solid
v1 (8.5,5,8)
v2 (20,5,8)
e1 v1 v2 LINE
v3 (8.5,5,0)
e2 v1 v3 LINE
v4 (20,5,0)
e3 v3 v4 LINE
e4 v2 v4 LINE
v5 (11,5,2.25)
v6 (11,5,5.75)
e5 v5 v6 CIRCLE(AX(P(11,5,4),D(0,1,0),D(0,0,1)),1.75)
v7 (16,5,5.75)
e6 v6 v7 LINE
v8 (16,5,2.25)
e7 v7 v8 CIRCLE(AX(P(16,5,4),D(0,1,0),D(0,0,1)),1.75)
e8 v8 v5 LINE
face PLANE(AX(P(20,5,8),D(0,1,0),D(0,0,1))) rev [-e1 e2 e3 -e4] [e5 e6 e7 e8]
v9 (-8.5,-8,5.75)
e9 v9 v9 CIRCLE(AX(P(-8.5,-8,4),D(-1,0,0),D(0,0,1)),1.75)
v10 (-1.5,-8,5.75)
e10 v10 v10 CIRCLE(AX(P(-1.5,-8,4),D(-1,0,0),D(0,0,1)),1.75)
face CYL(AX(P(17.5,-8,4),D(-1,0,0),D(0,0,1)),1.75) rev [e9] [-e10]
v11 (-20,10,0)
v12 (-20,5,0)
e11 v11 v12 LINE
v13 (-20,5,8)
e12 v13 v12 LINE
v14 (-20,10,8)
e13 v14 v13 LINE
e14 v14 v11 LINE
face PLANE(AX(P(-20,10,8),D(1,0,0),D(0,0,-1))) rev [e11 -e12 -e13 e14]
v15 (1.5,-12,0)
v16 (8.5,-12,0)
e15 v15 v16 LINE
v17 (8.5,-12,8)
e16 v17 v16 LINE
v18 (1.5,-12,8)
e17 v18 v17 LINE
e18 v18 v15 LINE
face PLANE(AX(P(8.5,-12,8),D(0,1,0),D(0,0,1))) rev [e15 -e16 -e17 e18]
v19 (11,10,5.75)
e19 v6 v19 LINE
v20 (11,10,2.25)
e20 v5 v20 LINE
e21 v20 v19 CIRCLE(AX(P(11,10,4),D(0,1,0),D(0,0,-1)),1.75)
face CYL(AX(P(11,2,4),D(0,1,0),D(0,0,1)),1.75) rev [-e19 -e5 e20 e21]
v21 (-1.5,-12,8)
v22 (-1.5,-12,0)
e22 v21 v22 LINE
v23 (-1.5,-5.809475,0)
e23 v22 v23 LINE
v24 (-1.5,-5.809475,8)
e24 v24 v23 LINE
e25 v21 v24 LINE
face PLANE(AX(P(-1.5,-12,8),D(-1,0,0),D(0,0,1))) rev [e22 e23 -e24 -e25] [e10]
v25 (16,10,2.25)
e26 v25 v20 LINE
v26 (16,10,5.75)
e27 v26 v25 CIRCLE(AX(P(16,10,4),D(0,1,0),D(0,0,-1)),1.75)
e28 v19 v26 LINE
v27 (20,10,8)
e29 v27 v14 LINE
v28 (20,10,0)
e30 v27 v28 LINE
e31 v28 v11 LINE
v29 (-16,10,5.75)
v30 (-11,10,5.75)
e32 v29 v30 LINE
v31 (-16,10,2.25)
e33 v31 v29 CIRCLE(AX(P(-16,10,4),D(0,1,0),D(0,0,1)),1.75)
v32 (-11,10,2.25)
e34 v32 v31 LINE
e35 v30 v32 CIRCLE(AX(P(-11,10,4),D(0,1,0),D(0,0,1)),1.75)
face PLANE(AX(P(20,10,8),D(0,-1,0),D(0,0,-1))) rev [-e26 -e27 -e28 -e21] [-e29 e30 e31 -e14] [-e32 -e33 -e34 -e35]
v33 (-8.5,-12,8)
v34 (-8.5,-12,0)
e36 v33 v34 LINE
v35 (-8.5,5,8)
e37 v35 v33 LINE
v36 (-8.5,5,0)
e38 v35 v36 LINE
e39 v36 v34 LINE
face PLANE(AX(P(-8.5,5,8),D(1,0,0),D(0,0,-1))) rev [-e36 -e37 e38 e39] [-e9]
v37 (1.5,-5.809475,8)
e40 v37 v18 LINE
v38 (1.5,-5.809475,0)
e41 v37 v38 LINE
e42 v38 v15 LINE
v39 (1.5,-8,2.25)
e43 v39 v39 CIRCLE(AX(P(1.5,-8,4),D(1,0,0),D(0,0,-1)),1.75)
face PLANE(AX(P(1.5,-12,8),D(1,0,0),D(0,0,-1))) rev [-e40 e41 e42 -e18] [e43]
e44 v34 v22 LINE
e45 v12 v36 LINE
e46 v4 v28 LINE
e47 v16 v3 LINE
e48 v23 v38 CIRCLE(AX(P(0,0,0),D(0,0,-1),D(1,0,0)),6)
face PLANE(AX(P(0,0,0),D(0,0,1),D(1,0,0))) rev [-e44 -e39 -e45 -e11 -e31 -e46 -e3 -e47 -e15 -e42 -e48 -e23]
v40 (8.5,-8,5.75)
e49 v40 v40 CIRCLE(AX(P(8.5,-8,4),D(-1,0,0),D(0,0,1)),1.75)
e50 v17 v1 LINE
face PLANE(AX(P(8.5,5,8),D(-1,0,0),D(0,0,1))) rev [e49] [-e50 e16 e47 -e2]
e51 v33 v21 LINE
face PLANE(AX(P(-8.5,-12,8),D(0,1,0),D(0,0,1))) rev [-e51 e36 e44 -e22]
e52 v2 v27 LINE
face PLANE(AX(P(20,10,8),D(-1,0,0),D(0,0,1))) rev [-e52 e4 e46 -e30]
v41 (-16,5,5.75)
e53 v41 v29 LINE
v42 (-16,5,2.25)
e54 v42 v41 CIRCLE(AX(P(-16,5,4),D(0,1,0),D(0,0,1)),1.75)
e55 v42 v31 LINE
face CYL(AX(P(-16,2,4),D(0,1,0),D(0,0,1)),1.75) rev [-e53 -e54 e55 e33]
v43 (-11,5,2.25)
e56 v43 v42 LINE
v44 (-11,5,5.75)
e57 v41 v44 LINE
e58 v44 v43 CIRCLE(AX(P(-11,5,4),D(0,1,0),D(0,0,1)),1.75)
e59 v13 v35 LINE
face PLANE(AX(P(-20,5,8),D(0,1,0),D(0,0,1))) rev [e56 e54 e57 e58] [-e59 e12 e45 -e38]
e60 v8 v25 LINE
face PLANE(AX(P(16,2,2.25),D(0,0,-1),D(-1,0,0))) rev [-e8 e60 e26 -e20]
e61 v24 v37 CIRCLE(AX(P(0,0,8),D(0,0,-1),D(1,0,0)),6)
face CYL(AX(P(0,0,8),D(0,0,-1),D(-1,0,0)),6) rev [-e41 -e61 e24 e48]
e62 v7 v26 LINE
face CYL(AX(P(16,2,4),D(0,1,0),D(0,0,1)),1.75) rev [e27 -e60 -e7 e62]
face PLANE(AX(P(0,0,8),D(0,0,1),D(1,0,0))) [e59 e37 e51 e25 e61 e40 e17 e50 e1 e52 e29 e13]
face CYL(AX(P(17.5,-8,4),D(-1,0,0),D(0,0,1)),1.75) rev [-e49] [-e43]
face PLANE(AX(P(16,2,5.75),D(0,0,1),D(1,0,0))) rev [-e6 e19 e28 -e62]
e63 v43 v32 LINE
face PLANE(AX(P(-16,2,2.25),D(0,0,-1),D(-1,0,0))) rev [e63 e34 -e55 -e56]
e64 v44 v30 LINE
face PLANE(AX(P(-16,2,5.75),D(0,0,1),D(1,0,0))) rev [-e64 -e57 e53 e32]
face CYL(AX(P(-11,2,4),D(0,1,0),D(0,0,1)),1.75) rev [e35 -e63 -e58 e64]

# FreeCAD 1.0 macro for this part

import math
import FreeCAD as App
import Part
import Sketcher
from FreeCAD import Vector
Q = App.Units.Quantity

doc = App.newDocument("Part")
body = doc.addObject("PartDesign::Body", "Body")

# Sketch on XY plane
sketch1 = doc.addObject("Sketcher::SketchObject", "Sketch")
body.addObject(sketch1)
sketch1.AttachmentSupport = (doc.XY_Plane, [""])
sketch1.MapMode = "FlatFace"
sketch1.addGeometry(Part.LineSegment(Vector(20, 10, 0), Vector(-20, 10, 0)), False)
sketch1.addGeometry(Part.LineSegment(Vector(-20, 10, 0), Vector(-20, 5, 0)), False)
sketch1.addGeometry(Part.LineSegment(Vector(-20, 5, 0), Vector(-8.5, 5, 0)), False)
sketch1.addGeometry(Part.LineSegment(Vector(-8.5, 5, 0), Vector(-8.5, -12, 0)), False)
sketch1.addGeometry(Part.LineSegment(Vector(-8.5, -12, 0), Vector(-1.5, -12, 0)), False)
sketch1.addGeometry(Part.LineSegment(Vector(-1.5, -12, 0), Vector(-1.5, -5.8, 0)), False)
sketch1.addGeometry(Part.ArcOfCircle(Part.Circle(Vector(0, 0, 0), Vector(0, 0, 1), 6), math.radians(-76), math.radians(256)), False)
sketch1.addGeometry(Part.LineSegment(Vector(1.5, -5.8, 0), Vector(1.5, -12, 0)), False)
sketch1.addGeometry(Part.LineSegment(Vector(1.5, -12, 0), Vector(8.5, -12, 0)), False)
sketch1.addGeometry(Part.LineSegment(Vector(8.5, -12, 0), Vector(8.5, 5, 0)), False)
sketch1.addGeometry(Part.LineSegment(Vector(8.5, 5, 0), Vector(20, 5, 0)), False)
sketch1.addGeometry(Part.LineSegment(Vector(20, 5, 0), Vector(20, 10, 0)), False)
sketch1.addConstraint(Sketcher.Constraint("Coincident", 0, 2, 1, 1))
sketch1.addConstraint(Sketcher.Constraint("Coincident", 1, 2, 2, 1))
sketch1.addConstraint(Sketcher.Constraint("Coincident", 2, 2, 3, 1))
sketch1.addConstraint(Sketcher.Constraint("Coincident", 3, 2, 4, 1))
sketch1.addConstraint(Sketcher.Constraint("Coincident", 4, 2, 5, 1))
sketch1.addConstraint(Sketcher.Constraint("Coincident", 5, 2, 6, 2))
sketch1.addConstraint(Sketcher.Constraint("Coincident", 6, 1, 7, 1))
sketch1.addConstraint(Sketcher.Constraint("Coincident", 7, 2, 8, 1))
sketch1.addConstraint(Sketcher.Constraint("Coincident", 8, 2, 9, 1))
sketch1.addConstraint(Sketcher.Constraint("Coincident", 9, 2, 10, 1))
sketch1.addConstraint(Sketcher.Constraint("Coincident", 10, 2, 11, 1))
sketch1.addConstraint(Sketcher.Constraint("Coincident", 11, 2, 0, 1))
sketch1.addConstraint(Sketcher.Constraint("Horizontal", 0))
sketch1.addConstraint(Sketcher.Constraint("Vertical", 1))
sketch1.addConstraint(Sketcher.Constraint("Horizontal", 2))
sketch1.addConstraint(Sketcher.Constraint("Vertical", 3))
sketch1.addConstraint(Sketcher.Constraint("Horizontal", 4))
sketch1.addConstraint(Sketcher.Constraint("Vertical", 5))
sketch1.addConstraint(Sketcher.Constraint("Vertical", 7))
sketch1.addConstraint(Sketcher.Constraint("Horizontal", 8))
sketch1.addConstraint(Sketcher.Constraint("Vertical", 9))
sketch1.addConstraint(Sketcher.Constraint("Horizontal", 10))
sketch1.addConstraint(Sketcher.Constraint("Vertical", 11))
sketch1.addConstraint(Sketcher.Constraint("Coincident", 6, 3, -1, 1))
sketch1.addConstraint(Sketcher.Constraint("Symmetric", 4, 2, 7, 2, -2))
sketch1.addConstraint(Sketcher.Constraint("Symmetric", 2, 2, 9, 2, -2))
sketch1.addConstraint(Sketcher.Constraint("Equal", 2, 10))
sketch1.addConstraint(Sketcher.Constraint("Radius", 6, Q("6 mm")))
sketch1.addConstraint(Sketcher.Constraint("DistanceX", 0, 2, 0, 1, Q("40 mm")))
sketch1.addConstraint(Sketcher.Constraint("DistanceX", 4, 1, 4, 2, Q("7 mm")))
sketch1.addConstraint(Sketcher.Constraint("DistanceY", 1, 2, 1, 1, Q("5 mm")))
sketch1.addConstraint(Sketcher.Constraint("DistanceY", 3, 2, 3, 1, Q("17 mm")))
sketch1.addConstraint(Sketcher.Constraint("DistanceX", 2, 1, 2, 2, Q("11.5 mm")))
sketch1.addConstraint(Sketcher.Constraint("DistanceY", -1, 1, 0, 2, Q("10 mm")))
pad1 = doc.addObject("PartDesign::Pad", "Pad")
body.addObject(pad1)
pad1.Profile = sketch1
pad1.Length = 8

# Sketch on XZ plane
sketch2 = doc.addObject("Sketcher::SketchObject", "Sketch001")
body.addObject(sketch2)
sketch2.AttachmentSupport = (doc.XZ_Plane, [""])
sketch2.MapMode = "FlatFace"
sketch2.AttachmentOffset = App.Placement(Vector(0, 0, -10), App.Rotation())
sketch2.addGeometry(Part.LineSegment(Vector(-11, 2.2, 0), Vector(-16, 2.2, 0)), False)
sketch2.addGeometry(Part.ArcOfCircle(Part.Circle(Vector(-16, 4, 0), Vector(0, 0, 1), 1.8), math.radians(90), math.radians(270)), False)
sketch2.addGeometry(Part.LineSegment(Vector(-16, 5.8, 0), Vector(-11, 5.8, 0)), False)
sketch2.addGeometry(Part.ArcOfCircle(Part.Circle(Vector(-11, 4, 0), Vector(0, 0, 1), 1.8), math.radians(-90), math.radians(90)), False)
sketch2.addGeometry(Part.LineSegment(Vector(11, 5.8, 0), Vector(16, 5.8, 0)), False)
sketch2.addGeometry(Part.ArcOfCircle(Part.Circle(Vector(16, 4, 0), Vector(0, 0, 1), 1.8), math.radians(-90), math.radians(90)), False)
sketch2.addGeometry(Part.LineSegment(Vector(16, 2.2, 0), Vector(11, 2.2, 0)), False)
sketch2.addGeometry(Part.ArcOfCircle(Part.Circle(Vector(11, 4, 0), Vector(0, 0, 1), 1.8), math.radians(90), math.radians(270)), False)
sketch2.addConstraint(Sketcher.Constraint("Tangent", 0, 2, 1, 2))
sketch2.addConstraint(Sketcher.Constraint("Tangent", 1, 1, 2, 1))
sketch2.addConstraint(Sketcher.Constraint("Tangent", 2, 2, 3, 2))
sketch2.addConstraint(Sketcher.Constraint("Tangent", 3, 1, 0, 1))
sketch2.addConstraint(Sketcher.Constraint("Tangent", 4, 2, 5, 2))
sketch2.addConstraint(Sketcher.Constraint("Tangent", 5, 1, 6, 1))
sketch2.addConstraint(Sketcher.Constraint("Tangent", 6, 2, 7, 2))
sketch2.addConstraint(Sketcher.Constraint("Tangent", 7, 1, 4, 1))
sketch2.addConstraint(Sketcher.Constraint("Horizontal", 0))
sketch2.addConstraint(Sketcher.Constraint("Horizontal", 2))
sketch2.addConstraint(Sketcher.Constraint("Horizontal", 4))
sketch2.addConstraint(Sketcher.Constraint("Horizontal", 6))
sketch2.addConstraint(Sketcher.Constraint("Equal", 3, 5))
sketch2.addConstraint(Sketcher.Constraint("Symmetric", 1, 3, 5, 3, -2))
sketch2.addConstraint(Sketcher.Constraint("Equal", 2, 4))
sketch2.addConstraint(Sketcher.Constraint("DistanceX", 0, 2, 0, 1, Q("5 mm")))
sketch2.addConstraint(Sketcher.Constraint("Radius", 1, Q("1.75 mm")))
sketch2.addConstraint(Sketcher.Constraint("DistanceX", 1, 3, -1, 1, Q("16 mm")))
sketch2.addConstraint(Sketcher.Constraint("DistanceY", -1, 1, 1, 3, Q("4 mm")))
pocket1 = doc.addObject("PartDesign::Pocket", "Pocket")
body.addObject(pocket1)
pocket1.Profile = sketch2
pocket1.Length = 8
pocket1.Reversed = True

# Sketch on YZ plane
sketch3 = doc.addObject("Sketcher::SketchObject", "Sketch002")
body.addObject(sketch3)
sketch3.AttachmentSupport = (doc.YZ_Plane, [""])
sketch3.MapMode = "FlatFace"
sketch3.AttachmentOffset = App.Placement(Vector(0, 0, -8.5), App.Rotation())
sketch3.addGeometry(Part.Circle(Vector(-8, 4, 0), Vector(0, 0, 1), 1.8), False)
sketch3.addConstraint(Sketcher.Constraint("Diameter", 0, Q("3.5 mm")))
sketch3.addConstraint(Sketcher.Constraint("DistanceX", 0, 3, -1, 1, Q("8 mm")))
sketch3.addConstraint(Sketcher.Constraint("DistanceY", -1, 1, 0, 3, Q("4 mm")))
pocket2 = doc.addObject("PartDesign::Pocket", "Pocket001")
body.addObject(pocket2)
pocket2.Profile = sketch3
pocket2.Length = 26
pocket2.Reversed = True

doc.recompute()
